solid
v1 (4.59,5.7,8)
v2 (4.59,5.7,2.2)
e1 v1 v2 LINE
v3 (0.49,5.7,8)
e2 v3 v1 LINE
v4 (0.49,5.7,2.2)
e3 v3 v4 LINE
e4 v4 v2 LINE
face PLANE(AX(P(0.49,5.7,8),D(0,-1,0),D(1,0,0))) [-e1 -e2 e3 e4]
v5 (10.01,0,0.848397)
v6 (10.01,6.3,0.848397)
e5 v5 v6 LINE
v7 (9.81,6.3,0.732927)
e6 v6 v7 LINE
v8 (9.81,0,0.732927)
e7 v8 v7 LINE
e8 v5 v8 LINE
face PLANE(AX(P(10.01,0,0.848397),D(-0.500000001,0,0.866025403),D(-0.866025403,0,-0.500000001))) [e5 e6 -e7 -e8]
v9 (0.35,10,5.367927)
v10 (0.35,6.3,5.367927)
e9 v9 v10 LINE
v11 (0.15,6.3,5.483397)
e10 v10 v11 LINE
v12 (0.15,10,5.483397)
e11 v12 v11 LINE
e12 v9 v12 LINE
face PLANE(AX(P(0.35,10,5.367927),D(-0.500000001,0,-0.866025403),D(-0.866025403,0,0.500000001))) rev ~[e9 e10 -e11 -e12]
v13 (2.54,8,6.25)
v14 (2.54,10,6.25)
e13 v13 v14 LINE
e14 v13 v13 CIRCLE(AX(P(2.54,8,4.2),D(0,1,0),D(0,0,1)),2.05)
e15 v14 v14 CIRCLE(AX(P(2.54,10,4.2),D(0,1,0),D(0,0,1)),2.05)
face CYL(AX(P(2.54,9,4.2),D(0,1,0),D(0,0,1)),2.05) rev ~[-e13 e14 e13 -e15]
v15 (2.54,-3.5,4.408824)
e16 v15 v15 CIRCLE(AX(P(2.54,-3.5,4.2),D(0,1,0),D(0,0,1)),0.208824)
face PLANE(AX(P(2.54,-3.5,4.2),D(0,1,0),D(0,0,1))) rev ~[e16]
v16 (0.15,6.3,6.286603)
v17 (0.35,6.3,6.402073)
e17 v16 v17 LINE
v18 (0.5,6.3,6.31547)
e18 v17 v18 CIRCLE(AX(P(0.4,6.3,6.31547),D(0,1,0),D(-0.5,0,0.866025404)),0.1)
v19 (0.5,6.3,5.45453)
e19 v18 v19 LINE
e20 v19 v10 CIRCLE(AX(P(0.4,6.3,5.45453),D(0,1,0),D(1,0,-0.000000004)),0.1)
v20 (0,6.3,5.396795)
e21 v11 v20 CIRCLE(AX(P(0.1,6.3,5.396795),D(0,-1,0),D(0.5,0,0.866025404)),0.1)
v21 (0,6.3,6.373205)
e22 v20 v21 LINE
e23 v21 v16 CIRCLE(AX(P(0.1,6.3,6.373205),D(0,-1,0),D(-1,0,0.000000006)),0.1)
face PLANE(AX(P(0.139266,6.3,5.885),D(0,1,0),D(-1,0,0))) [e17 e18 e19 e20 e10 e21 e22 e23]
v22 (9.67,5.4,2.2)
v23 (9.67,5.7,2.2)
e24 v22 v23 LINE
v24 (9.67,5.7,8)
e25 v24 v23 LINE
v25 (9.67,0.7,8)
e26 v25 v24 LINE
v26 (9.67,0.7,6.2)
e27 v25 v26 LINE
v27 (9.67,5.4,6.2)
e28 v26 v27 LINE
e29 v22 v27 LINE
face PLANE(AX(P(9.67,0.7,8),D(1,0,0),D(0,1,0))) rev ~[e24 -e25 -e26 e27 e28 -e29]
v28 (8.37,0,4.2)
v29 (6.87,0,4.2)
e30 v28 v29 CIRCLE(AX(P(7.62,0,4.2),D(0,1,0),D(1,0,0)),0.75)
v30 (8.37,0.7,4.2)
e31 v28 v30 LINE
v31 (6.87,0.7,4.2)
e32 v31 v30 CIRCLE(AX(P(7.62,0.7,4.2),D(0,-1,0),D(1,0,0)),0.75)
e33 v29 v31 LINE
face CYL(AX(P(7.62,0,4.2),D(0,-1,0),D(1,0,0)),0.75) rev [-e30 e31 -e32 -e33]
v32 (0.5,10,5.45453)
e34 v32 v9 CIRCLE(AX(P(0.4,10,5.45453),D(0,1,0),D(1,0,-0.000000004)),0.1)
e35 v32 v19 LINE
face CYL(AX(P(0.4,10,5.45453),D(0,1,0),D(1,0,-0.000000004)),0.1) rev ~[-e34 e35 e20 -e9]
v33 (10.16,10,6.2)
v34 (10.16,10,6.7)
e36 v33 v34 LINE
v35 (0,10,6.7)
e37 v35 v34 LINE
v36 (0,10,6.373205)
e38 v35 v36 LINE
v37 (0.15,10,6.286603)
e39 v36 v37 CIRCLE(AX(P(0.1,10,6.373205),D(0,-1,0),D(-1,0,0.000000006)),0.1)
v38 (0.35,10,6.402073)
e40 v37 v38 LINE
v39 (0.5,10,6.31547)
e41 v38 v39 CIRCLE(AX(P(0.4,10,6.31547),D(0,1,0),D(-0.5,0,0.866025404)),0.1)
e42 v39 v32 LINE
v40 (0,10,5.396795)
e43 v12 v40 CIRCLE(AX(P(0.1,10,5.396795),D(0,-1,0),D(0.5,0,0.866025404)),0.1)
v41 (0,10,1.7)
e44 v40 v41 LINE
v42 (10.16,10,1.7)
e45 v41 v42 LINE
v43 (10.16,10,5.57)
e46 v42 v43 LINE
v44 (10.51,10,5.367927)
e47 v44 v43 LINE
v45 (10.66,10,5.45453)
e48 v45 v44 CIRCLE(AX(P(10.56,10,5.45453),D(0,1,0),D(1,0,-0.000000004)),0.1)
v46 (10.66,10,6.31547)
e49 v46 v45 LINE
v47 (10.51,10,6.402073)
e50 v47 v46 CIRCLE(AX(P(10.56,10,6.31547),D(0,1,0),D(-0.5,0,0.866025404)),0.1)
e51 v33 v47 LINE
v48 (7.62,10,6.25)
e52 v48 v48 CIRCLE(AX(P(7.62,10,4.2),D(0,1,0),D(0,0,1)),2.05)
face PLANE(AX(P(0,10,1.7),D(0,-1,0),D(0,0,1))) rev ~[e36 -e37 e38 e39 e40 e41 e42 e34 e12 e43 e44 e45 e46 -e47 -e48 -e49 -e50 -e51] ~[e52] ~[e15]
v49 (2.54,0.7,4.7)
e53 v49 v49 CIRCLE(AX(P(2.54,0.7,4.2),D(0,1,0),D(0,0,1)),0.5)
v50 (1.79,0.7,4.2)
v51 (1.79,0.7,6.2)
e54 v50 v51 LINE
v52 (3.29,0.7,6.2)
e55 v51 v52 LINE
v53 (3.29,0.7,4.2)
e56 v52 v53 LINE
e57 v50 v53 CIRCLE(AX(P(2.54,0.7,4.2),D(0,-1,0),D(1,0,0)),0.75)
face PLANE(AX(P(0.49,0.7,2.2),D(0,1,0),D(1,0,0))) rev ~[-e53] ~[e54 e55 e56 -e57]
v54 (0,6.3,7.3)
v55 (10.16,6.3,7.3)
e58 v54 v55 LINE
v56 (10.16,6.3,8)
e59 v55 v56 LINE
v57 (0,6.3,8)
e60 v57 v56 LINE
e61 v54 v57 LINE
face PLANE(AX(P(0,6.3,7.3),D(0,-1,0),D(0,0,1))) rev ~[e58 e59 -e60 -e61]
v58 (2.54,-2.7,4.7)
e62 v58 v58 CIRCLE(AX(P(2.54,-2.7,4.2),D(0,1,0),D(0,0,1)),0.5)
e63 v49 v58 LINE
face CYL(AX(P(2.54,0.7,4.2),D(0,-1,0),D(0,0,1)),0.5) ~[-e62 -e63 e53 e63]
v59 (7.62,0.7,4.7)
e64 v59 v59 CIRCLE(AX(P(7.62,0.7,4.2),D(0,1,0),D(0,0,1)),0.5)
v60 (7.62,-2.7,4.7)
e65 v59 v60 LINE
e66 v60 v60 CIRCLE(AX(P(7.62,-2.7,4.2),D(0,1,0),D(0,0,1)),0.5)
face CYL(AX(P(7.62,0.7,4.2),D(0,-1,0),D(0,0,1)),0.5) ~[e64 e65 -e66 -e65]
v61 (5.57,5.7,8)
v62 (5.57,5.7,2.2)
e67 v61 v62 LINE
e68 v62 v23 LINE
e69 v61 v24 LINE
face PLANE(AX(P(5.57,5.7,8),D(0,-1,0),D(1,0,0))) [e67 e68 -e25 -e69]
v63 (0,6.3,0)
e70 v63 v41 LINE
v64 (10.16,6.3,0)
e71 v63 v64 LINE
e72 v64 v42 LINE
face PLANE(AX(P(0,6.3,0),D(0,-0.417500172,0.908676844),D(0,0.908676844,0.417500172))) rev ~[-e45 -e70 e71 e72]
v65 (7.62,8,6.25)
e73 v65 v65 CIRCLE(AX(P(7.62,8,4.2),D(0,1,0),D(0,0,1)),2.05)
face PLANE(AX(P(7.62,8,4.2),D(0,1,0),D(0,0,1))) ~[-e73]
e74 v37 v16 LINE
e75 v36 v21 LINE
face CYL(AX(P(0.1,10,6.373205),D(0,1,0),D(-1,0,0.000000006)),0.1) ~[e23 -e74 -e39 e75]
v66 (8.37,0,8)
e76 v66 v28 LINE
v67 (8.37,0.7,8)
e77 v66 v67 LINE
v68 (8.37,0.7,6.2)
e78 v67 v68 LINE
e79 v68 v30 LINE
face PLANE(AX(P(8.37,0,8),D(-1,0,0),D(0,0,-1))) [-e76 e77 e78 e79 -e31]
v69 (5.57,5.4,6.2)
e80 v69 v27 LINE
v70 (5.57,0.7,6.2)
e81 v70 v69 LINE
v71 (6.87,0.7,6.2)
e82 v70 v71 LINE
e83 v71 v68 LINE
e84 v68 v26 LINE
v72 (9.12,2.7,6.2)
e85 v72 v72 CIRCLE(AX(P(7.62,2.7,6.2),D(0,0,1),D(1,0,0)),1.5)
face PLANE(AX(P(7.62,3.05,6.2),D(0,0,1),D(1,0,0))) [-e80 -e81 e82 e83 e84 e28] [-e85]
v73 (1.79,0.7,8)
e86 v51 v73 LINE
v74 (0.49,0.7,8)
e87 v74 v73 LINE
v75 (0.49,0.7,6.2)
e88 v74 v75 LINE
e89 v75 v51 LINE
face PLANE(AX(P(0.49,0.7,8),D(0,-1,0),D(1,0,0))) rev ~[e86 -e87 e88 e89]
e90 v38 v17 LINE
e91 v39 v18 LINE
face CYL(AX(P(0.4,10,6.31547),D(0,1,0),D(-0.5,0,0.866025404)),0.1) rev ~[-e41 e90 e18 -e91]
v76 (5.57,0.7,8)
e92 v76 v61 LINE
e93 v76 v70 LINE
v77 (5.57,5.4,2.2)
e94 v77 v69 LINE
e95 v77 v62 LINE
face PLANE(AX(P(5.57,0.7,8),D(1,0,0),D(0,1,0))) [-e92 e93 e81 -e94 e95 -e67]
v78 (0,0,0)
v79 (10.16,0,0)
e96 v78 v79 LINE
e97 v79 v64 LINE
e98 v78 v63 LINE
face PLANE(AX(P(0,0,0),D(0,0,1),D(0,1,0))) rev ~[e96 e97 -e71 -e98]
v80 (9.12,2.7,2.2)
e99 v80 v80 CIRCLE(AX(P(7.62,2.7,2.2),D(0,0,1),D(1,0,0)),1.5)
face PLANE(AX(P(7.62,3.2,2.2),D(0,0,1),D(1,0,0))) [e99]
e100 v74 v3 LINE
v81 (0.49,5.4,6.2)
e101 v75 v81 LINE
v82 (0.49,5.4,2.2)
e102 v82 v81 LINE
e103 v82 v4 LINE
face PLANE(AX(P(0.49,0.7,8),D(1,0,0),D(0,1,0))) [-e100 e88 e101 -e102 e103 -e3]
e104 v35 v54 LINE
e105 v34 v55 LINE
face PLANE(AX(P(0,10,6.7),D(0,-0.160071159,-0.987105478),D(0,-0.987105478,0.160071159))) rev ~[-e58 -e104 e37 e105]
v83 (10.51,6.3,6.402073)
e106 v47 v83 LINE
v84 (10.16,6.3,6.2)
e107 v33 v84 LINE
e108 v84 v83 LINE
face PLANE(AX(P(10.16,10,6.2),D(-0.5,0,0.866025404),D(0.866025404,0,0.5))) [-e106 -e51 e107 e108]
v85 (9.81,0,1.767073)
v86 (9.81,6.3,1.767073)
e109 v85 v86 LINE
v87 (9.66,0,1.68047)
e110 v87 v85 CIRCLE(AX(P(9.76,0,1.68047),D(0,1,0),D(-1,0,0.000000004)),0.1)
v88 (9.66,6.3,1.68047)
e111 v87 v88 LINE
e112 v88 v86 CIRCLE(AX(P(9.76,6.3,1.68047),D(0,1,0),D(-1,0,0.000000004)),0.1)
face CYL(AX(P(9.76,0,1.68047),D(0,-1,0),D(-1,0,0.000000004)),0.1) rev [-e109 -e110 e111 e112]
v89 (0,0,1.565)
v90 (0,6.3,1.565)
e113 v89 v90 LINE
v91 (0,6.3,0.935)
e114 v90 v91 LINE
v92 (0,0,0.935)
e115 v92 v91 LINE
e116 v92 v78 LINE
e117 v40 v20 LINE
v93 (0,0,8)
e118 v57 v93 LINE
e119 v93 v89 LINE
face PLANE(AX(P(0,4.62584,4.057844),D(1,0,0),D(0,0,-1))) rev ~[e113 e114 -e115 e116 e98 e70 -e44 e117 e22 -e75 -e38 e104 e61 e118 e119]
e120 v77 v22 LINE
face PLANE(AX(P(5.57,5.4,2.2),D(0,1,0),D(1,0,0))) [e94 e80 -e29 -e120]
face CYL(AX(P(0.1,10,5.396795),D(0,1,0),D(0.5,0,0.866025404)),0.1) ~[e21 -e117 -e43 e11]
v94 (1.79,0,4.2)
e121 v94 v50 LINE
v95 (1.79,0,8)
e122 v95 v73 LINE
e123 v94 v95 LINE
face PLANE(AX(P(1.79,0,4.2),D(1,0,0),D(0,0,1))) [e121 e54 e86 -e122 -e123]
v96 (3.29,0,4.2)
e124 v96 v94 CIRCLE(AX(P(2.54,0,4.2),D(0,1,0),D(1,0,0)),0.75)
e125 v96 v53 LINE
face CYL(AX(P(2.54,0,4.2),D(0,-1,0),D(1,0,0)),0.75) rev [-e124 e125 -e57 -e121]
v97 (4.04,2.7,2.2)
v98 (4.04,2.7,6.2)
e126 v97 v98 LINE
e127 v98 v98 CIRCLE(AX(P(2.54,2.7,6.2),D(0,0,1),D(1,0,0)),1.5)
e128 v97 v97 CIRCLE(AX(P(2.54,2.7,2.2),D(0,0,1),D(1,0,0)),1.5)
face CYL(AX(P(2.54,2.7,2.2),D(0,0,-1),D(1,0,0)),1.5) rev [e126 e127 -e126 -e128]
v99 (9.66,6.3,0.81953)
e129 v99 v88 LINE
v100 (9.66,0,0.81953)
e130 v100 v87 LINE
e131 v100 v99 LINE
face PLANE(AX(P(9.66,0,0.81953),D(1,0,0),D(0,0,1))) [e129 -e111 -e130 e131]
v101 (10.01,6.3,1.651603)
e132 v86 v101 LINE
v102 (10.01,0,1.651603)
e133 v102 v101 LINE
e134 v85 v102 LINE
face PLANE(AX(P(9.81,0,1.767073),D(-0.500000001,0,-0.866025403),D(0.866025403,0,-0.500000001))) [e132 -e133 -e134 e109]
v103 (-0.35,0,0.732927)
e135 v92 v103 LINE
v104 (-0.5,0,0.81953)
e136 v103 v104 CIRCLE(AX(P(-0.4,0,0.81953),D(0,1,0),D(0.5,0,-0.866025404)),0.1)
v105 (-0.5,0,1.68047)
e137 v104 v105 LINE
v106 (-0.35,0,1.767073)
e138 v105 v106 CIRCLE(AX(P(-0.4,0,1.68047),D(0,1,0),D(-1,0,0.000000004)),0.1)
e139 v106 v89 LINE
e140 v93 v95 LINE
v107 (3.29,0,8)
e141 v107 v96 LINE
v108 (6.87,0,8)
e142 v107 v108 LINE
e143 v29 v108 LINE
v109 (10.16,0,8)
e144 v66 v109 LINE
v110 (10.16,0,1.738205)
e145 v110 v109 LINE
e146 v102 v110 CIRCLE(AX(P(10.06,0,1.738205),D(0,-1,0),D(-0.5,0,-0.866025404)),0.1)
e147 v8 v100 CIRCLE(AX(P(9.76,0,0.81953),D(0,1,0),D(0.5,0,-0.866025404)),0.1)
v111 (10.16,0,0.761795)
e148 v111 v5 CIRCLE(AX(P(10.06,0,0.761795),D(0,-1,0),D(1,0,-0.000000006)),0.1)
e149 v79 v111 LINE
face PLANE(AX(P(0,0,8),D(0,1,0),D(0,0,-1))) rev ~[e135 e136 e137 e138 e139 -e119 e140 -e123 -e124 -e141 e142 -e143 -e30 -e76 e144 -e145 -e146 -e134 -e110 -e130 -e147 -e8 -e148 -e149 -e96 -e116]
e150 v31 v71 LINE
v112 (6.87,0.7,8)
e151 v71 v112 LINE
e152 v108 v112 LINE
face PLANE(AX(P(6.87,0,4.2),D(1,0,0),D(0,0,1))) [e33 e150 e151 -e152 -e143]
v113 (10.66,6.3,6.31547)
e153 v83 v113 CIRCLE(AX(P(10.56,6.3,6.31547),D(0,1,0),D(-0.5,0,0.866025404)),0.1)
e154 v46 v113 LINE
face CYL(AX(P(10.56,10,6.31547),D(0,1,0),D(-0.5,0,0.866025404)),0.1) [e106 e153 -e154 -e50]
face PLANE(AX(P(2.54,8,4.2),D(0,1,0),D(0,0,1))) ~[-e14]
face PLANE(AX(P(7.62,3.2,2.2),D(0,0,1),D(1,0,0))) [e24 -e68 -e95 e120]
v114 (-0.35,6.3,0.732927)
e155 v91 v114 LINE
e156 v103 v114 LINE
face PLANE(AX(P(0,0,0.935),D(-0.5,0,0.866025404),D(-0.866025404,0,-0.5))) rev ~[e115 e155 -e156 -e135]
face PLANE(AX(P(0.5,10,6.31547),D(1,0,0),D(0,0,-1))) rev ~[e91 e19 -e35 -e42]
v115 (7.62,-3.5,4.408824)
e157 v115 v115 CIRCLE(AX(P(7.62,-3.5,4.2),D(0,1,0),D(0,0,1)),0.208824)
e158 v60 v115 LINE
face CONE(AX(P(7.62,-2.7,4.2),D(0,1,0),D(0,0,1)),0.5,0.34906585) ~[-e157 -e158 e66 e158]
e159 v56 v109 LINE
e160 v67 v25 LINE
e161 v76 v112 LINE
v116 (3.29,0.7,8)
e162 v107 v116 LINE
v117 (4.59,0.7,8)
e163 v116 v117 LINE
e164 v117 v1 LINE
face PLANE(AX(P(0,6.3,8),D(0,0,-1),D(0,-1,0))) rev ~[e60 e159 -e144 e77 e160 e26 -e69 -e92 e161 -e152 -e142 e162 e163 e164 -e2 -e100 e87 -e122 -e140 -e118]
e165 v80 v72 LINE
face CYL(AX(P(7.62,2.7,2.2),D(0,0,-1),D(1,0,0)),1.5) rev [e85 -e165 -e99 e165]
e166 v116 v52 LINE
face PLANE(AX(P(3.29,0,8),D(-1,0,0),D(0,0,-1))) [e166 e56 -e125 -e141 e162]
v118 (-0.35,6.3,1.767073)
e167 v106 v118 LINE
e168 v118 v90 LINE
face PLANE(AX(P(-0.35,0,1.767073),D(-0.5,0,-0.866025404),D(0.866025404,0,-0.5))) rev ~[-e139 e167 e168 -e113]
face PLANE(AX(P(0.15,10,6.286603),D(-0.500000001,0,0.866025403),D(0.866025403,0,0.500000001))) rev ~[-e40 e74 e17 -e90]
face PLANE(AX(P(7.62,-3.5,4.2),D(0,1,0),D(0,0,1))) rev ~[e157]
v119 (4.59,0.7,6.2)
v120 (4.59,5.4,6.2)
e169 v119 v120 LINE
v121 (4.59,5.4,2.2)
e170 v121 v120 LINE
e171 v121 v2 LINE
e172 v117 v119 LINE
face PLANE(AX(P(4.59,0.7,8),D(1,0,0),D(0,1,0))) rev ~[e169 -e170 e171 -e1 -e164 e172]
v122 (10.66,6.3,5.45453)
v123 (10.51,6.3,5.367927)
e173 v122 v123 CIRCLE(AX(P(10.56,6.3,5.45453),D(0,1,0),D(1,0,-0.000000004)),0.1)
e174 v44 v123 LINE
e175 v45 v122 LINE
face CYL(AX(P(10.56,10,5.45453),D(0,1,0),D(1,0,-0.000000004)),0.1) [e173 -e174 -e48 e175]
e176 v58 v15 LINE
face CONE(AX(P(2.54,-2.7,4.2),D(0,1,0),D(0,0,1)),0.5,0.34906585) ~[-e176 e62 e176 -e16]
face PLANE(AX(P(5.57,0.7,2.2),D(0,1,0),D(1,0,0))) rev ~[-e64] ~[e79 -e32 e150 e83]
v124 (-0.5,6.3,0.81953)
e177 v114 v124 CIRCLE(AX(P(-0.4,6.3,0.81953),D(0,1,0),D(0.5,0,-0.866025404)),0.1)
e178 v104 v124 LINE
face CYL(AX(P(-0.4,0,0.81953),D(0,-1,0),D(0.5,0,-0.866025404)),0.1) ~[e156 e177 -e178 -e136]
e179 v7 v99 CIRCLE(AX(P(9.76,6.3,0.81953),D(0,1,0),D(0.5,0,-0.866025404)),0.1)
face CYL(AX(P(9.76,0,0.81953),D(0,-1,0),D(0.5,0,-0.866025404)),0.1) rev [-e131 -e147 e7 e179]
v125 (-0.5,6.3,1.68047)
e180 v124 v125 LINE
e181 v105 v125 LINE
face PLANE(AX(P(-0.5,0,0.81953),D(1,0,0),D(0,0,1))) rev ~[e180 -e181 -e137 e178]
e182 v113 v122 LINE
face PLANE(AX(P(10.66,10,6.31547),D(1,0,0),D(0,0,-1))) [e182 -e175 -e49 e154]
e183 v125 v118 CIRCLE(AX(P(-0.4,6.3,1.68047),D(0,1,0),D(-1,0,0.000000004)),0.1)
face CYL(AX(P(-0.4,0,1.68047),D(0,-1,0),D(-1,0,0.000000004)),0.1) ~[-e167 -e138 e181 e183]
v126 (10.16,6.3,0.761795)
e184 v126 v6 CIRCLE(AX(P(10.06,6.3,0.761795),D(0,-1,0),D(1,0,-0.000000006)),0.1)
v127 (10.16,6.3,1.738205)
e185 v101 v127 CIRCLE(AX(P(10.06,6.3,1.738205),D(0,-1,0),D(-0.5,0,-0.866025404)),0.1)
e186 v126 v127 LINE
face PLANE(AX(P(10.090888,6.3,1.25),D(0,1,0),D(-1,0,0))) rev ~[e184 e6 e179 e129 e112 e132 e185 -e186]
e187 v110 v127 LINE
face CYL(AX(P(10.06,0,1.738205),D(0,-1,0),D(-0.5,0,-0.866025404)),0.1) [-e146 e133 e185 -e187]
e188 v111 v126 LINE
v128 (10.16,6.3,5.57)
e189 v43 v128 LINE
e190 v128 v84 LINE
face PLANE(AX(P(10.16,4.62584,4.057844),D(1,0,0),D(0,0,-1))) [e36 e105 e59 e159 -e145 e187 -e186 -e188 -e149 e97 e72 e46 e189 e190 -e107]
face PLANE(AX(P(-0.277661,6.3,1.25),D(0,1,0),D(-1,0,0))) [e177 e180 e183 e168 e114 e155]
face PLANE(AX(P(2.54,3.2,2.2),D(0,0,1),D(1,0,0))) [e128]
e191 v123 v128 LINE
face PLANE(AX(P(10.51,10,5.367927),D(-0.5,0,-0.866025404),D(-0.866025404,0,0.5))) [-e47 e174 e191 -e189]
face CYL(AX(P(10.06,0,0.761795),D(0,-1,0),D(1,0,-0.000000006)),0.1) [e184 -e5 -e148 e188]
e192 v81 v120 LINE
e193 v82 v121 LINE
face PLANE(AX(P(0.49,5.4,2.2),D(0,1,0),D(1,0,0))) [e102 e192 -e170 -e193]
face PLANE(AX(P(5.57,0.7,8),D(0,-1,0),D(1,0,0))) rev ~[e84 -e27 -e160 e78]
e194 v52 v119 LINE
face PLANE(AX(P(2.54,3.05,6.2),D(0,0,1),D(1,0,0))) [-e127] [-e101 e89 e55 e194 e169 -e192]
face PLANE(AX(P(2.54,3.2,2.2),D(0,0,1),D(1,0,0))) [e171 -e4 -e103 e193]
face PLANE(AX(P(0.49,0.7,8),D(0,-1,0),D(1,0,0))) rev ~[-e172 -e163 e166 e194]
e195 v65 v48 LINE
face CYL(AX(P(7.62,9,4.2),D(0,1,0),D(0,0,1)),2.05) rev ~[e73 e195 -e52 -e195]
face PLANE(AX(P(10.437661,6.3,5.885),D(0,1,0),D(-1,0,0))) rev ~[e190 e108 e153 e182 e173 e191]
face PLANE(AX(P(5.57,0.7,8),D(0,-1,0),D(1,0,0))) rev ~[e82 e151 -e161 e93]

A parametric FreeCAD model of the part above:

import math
import FreeCAD as App
import Part
import Sketcher
from FreeCAD import Vector
Q = App.Units.Quantity

doc = App.newDocument("Part")
params = doc.addObject("Spreadsheet::Sheet", "Params")
for row, (alias, value) in enumerate([
    ("sketch1_height", "8 mm"),
    ("sketch1_height2", "5 mm"),
    ("sketch1_width", "6.3 mm"),
    ("sketch1_height3", "0.7 mm"),
    ("pad1_length", "10.16 mm"),
    ("sketch2_height", "5 mm"),
    ("sketch2_width", "4.1 mm"),
    ("pocket1_length", "5.8 mm"),
    ("sketch3_height", "5 mm"),
    ("sketch3_width", "4.1 mm"),
    ("pocket2_length", "5.8 mm"),
    ("sketch4_radius", "0.75 mm"),
    ("sketch4_height", "3.8 mm"),
    ("pocket3_length", "1 mm"),
    ("sketch5_radius", "0.75 mm"),
    ("sketch5_height", "3.8 mm"),
    ("pocket4_length", "1 mm"),
    ("sketch6_diameter", "3 mm"),
    ("sketch6_width", "4.1 mm"),
    ("sketch6_height", "4.7 mm"),
    ("pad2_length", "2 mm"),
    ("pad2_length2", "2 mm"),
    ("sketch7_diameter", "3 mm"),
    ("sketch7_width", "4.1 mm"),
    ("sketch7_height", "4.7 mm"),
    ("pad3_length", "2 mm"),
    ("pad3_length2", "2 mm"),
    ("sketch8_width", "0.5 mm"),
    ("sketch8_height", "4.2 mm"),
    ("sketch8_height2", "3.4 mm"),
    ("revolution_angle", "360 deg"),
    ("sketch9_width", "0.5 mm"),
    ("sketch9_height", "4.2 mm"),
    ("sketch9_height2", "3.4 mm"),
    ("revolution2_angle", "360 deg"),
    ("sketch10_height", "2 mm"),
    ("sketch10_width", "2.05 mm"),
    ("groove_angle", "360 deg"),
    ("sketch11_height", "2 mm"),
    ("sketch11_width", "2.05 mm"),
    ("groove2_angle", "360 deg"),
    ("sketch12_radius", "0.1 mm"),
    ("sketch12_height", "0.63 mm"),
    ("pad4_length", "6.3 mm"),
    ("sketch13_radius", "0.1 mm"),
    ("sketch13_width", "0.3 mm"),
    ("sketch13_height", "1.23 mm"),
    ("pocket5_length", "6.3 mm"),
    ("sketch14_radius", "0.1 mm"),
    ("sketch14_width", "0.2 mm"),
    ("sketch14_height", "1.03 mm"),
    ("pocket6_length", "3.7 mm"),
    ("sketch15_radius", "0.1 mm"),
    ("sketch15_height", "0.63 mm"),
    ("pad5_length", "3.7 mm"),
], start=1):
    params.set(f"A{row}", alias)
    params.set(f"B{row}", "=" + value)
    params.setAlias(f"B{row}", alias)

body = doc.addObject("PartDesign::Body", "Body")

sketch1 = body.newObject("Sketcher::SketchObject", "Sketch")
sketch1.AttachmentSupport = (doc.getObject("YZ_Plane"), [""])
sketch1.MapMode = "FlatFace"
sketch1.addGeometry([
    Part.LineSegment(Vector(0, 8, 0), Vector(0, 0, 0)),
    Part.LineSegment(Vector(0, 0, 0), Vector(6.3, 0, 0)),
    Part.LineSegment(Vector(6.3, 0, 0), Vector(10, 1.7, 0)),
    Part.LineSegment(Vector(10, 1.7, 0), Vector(10, 6.7, 0)),
    Part.LineSegment(Vector(10, 6.7, 0), Vector(6.3, 7.3, 0)),
    Part.LineSegment(Vector(6.3, 7.3, 0), Vector(6.3, 8, 0)),
    Part.LineSegment(Vector(6.3, 8, 0), Vector(0, 8, 0)),
], False)
sketch1.addConstraint([
    Sketcher.Constraint("Coincident", 0, 2, 1, 1),
    Sketcher.Constraint("Coincident", 1, 2, 2, 1),
    Sketcher.Constraint("Coincident", 2, 2, 3, 1),
    Sketcher.Constraint("Coincident", 3, 2, 4, 1),
    Sketcher.Constraint("Coincident", 4, 2, 5, 1),
    Sketcher.Constraint("Coincident", 5, 2, 6, 1),
    Sketcher.Constraint("Coincident", 6, 2, 0, 1),
    Sketcher.Constraint("Vertical", 0),
    Sketcher.Constraint("Horizontal", 1),
    Sketcher.Constraint("Vertical", 3),
    Sketcher.Constraint("Vertical", 5),
    Sketcher.Constraint("Horizontal", 6),
    Sketcher.Constraint("Coincident", 0, 2, -1, 1),
    Sketcher.Constraint("Vertical", 1, 2, 4, 2),
    Sketcher.Constraint("DistanceY", 0, 2, 0, 1, Q("8 mm")),
    Sketcher.Constraint("DistanceY", 3, 1, 3, 2, Q("5 mm")),
    Sketcher.Constraint("DistanceX", 1, 1, 1, 2, Q("6.3 mm")),
    Sketcher.Constraint("DistanceY", 5, 1, 5, 2, Q("0.7 mm")),
    Sketcher.Constraint("DistanceX", -1, 1, 2, 2, Q("10 mm")),
    Sketcher.Constraint("DistanceY", -1, 1, 2, 2, Q("1.7 mm")),
])
sketch1.setExpression("Constraints[14]", "Params.sketch1_height")
sketch1.setExpression("Constraints[15]", "Params.sketch1_height2")
sketch1.setExpression("Constraints[16]", "Params.sketch1_width")
sketch1.setExpression("Constraints[17]", "Params.sketch1_height3")
pad1 = body.newObject("PartDesign::Pad", "Pad")
pad1.Profile = sketch1
pad1.setExpression("Length", "Params.pad1_length")

sketch2 = body.newObject("Sketcher::SketchObject", "Sketch001")
sketch2.AttachmentSupport = (doc.getObject("XY_Plane"), [""])
sketch2.MapMode = "FlatFace"
sketch2.AttachmentOffset = App.Placement(Vector(0, 0, 8), App.Rotation())
sketch2.addGeometry([
    Part.LineSegment(Vector(0.5, 5.7, 0), Vector(0.5, 0.7, 0)),
    Part.LineSegment(Vector(0.5, 0.7, 0), Vector(4.6, 0.7, 0)),
    Part.LineSegment(Vector(4.6, 0.7, 0), Vector(4.6, 5.7, 0)),
    Part.LineSegment(Vector(4.6, 5.7, 0), Vector(0.5, 5.7, 0)),
], False)
sketch2.addConstraint([
    Sketcher.Constraint("Coincident", 0, 2, 1, 1),
    Sketcher.Constraint("Coincident", 1, 2, 2, 1),
    Sketcher.Constraint("Coincident", 2, 2, 3, 1),
    Sketcher.Constraint("Coincident", 3, 2, 0, 1),
    Sketcher.Constraint("Vertical", 0),
    Sketcher.Constraint("Horizontal", 1),
    Sketcher.Constraint("Vertical", 2),
    Sketcher.Constraint("Horizontal", 3),
    Sketcher.Constraint("DistanceY", 0, 2, 0, 1, Q("5 mm")),
    Sketcher.Constraint("DistanceX", 1, 1, 1, 2, Q("4.1 mm")),
    Sketcher.Constraint("DistanceY", -1, 1, 0, 2, Q("0.7 mm")),
    Sketcher.Constraint("DistanceX", -1, 1, 0, 2, Q("0.49 mm")),
])
sketch2.setExpression("Constraints[8]", "Params.sketch2_height")
sketch2.setExpression("Constraints[9]", "Params.sketch2_width")
pocket1 = body.newObject("PartDesign::Pocket", "Pocket")
pocket1.Profile = sketch2
pocket1.setExpression("Length", "Params.pocket1_length")

sketch3 = body.newObject("Sketcher::SketchObject", "Sketch002")
sketch3.AttachmentSupport = (doc.getObject("XY_Plane"), [""])
sketch3.MapMode = "FlatFace"
sketch3.AttachmentOffset = App.Placement(Vector(0, 0, 8), App.Rotation())
sketch3.addGeometry([
    Part.LineSegment(Vector(5.6, 5.7, 0), Vector(5.6, 0.7, 0)),
    Part.LineSegment(Vector(5.6, 0.7, 0), Vector(9.7, 0.7, 0)),
    Part.LineSegment(Vector(9.7, 0.7, 0), Vector(9.7, 5.7, 0)),
    Part.LineSegment(Vector(9.7, 5.7, 0), Vector(5.6, 5.7, 0)),
], False)
sketch3.addConstraint([
    Sketcher.Constraint("Coincident", 0, 2, 1, 1),
    Sketcher.Constraint("Coincident", 1, 2, 2, 1),
    Sketcher.Constraint("Coincident", 2, 2, 3, 1),
    Sketcher.Constraint("Coincident", 3, 2, 0, 1),
    Sketcher.Constraint("Vertical", 0),
    Sketcher.Constraint("Horizontal", 1),
    Sketcher.Constraint("Vertical", 2),
    Sketcher.Constraint("Horizontal", 3),
    Sketcher.Constraint("DistanceY", 0, 2, 0, 1, Q("5 mm")),
    Sketcher.Constraint("DistanceX", 1, 1, 1, 2, Q("4.1 mm")),
    Sketcher.Constraint("DistanceY", -1, 1, 0, 2, Q("0.7 mm")),
    Sketcher.Constraint("DistanceX", -1, 1, 0, 2, Q("5.57 mm")),
])
sketch3.setExpression("Constraints[8]", "Params.sketch3_height")
sketch3.setExpression("Constraints[9]", "Params.sketch3_width")
pocket2 = body.newObject("PartDesign::Pocket", "Pocket001")
pocket2.Profile = sketch3
pocket2.setExpression("Length", "Params.pocket2_length")

sketch4 = body.newObject("Sketcher::SketchObject", "Sketch003")
sketch4.AttachmentSupport = (doc.getObject("XZ_Plane"), [""])
sketch4.MapMode = "FlatFace"
sketch4.addGeometry([
    Part.LineSegment(Vector(1.8, 4.2, 0), Vector(1.8, 8, 0)),
    Part.LineSegment(Vector(1.8, 8, 0), Vector(3.3, 8, 0)),
    Part.LineSegment(Vector(3.3, 8, 0), Vector(3.3, 4.2, 0)),
    Part.ArcOfCircle(Part.Circle(Vector(2.5, 4.2, 0), Vector(0, 0, 1), 0.8), math.radians(180), math.radians(360)),
], False)
sketch4.addConstraint([
    Sketcher.Constraint("Coincident", 0, 2, 1, 1),
    Sketcher.Constraint("Coincident", 1, 2, 2, 1),
    Sketcher.Constraint("Tangent", 2, 2, 3, 2),
    Sketcher.Constraint("Tangent", 3, 1, 0, 1),
    Sketcher.Constraint("Vertical", 0),
    Sketcher.Constraint("Horizontal", 1),
    Sketcher.Constraint("Vertical", 2),
    Sketcher.Constraint("Radius", 3, Q("0.75 mm")),
    Sketcher.Constraint("DistanceY", 0, 1, 0, 2, Q("3.8 mm")),
    Sketcher.Constraint("DistanceY", -1, 1, 0, 2, Q("8 mm")),
    Sketcher.Constraint("DistanceX", -1, 1, 3, 3, Q("2.54 mm")),
])
sketch4.setExpression("Constraints[7]", "Params.sketch4_radius")
sketch4.setExpression("Constraints[8]", "Params.sketch4_height")
pocket3 = body.newObject("PartDesign::Pocket", "Pocket002")
pocket3.Profile = sketch4
pocket3.setExpression("Length", "Params.pocket3_length")

sketch5 = body.newObject("Sketcher::SketchObject", "Sketch004")
sketch5.AttachmentSupport = (doc.getObject("XZ_Plane"), [""])
sketch5.MapMode = "FlatFace"
sketch5.addGeometry([
    Part.LineSegment(Vector(6.9, 4.2, 0), Vector(6.9, 8, 0)),
    Part.LineSegment(Vector(6.9, 8, 0), Vector(8.4, 8, 0)),
    Part.LineSegment(Vector(8.4, 8, 0), Vector(8.4, 4.2, 0)),
    Part.ArcOfCircle(Part.Circle(Vector(7.6, 4.2, 0), Vector(0, 0, 1), 0.8), math.radians(180), math.radians(360)),
], False)
sketch5.addConstraint([
    Sketcher.Constraint("Coincident", 0, 2, 1, 1),
    Sketcher.Constraint("Coincident", 1, 2, 2, 1),
    Sketcher.Constraint("Tangent", 2, 2, 3, 2),
    Sketcher.Constraint("Tangent", 3, 1, 0, 1),
    Sketcher.Constraint("Vertical", 0),
    Sketcher.Constraint("Horizontal", 1),
    Sketcher.Constraint("Vertical", 2),
    Sketcher.Constraint("Radius", 3, Q("0.75 mm")),
    Sketcher.Constraint("DistanceY", 0, 1, 0, 2, Q("3.8 mm")),
    Sketcher.Constraint("DistanceY", -1, 1, 0, 2, Q("8 mm")),
    Sketcher.Constraint("DistanceX", -1, 1, 3, 3, Q("7.62 mm")),
])
sketch5.setExpression("Constraints[7]", "Params.sketch5_radius")
sketch5.setExpression("Constraints[8]", "Params.sketch5_height")
pocket4 = body.newObject("PartDesign::Pocket", "Pocket003")
pocket4.Profile = sketch5
pocket4.setExpression("Length", "Params.pocket4_length")

sketch6 = body.newObject("Sketcher::SketchObject", "Sketch005")
sketch6.AttachmentSupport = (doc.getObject("XY_Plane"), [""])
sketch6.MapMode = "FlatFace"
sketch6.AttachmentOffset = App.Placement(Vector(0, 0, 4.2), App.Rotation())
sketch6.addGeometry([
    Part.LineSegment(Vector(0.5, 5.4, 0), Vector(0.5, 0.7, 0)),
    Part.LineSegment(Vector(0.5, 0.7, 0), Vector(4.6, 0.7, 0)),
    Part.LineSegment(Vector(4.6, 0.7, 0), Vector(4.6, 5.4, 0)),
    Part.LineSegment(Vector(4.6, 5.4, 0), Vector(0.5, 5.4, 0)),
    Part.Circle(Vector(2.5, 2.7, 0), Vector(0, 0, 1), 1.5),
], False)
sketch6.addConstraint([
    Sketcher.Constraint("Coincident", 0, 2, 1, 1),
    Sketcher.Constraint("Coincident", 1, 2, 2, 1),
    Sketcher.Constraint("Coincident", 2, 2, 3, 1),
    Sketcher.Constraint("Coincident", 3, 2, 0, 1),
    Sketcher.Constraint("Vertical", 0),
    Sketcher.Constraint("Horizontal", 1),
    Sketcher.Constraint("Vertical", 2),
    Sketcher.Constraint("Horizontal", 3),
    Sketcher.Constraint("Diameter", 4, Q("3 mm")),
    Sketcher.Constraint("DistanceX", 1, 1, 1, 2, Q("4.1 mm")),
    Sketcher.Constraint("DistanceY", 0, 2, 0, 1, Q("4.7 mm")),
    Sketcher.Constraint("DistanceY", 0, 2, 4, 3, Q("2 mm")),
    Sketcher.Constraint("DistanceY", -1, 1, 4, 3, Q("2.7 mm")),
    Sketcher.Constraint("DistanceX", -1, 1, 4, 3, Q("2.54 mm")),
    Sketcher.Constraint("DistanceX", -1, 1, 0, 2, Q("0.49 mm")),
])
sketch6.setExpression("Constraints[8]", "Params.sketch6_diameter")
sketch6.setExpression("Constraints[9]", "Params.sketch6_width")
sketch6.setExpression("Constraints[10]", "Params.sketch6_height")
pad2 = body.newObject("PartDesign::Pad", "Pad001")
pad2.Profile = sketch6
pad2.Type = "TwoLengths"
pad2.setExpression("Length", "Params.pad2_length")
pad2.setExpression("Length2", "Params.pad2_length2")

sketch7 = body.newObject("Sketcher::SketchObject", "Sketch006")
sketch7.AttachmentSupport = (doc.getObject("XY_Plane"), [""])
sketch7.MapMode = "FlatFace"
sketch7.AttachmentOffset = App.Placement(Vector(0, 0, 4.2), App.Rotation())
sketch7.addGeometry([
    Part.LineSegment(Vector(5.6, 5.4, 0), Vector(5.6, 0.7, 0)),
    Part.LineSegment(Vector(5.6, 0.7, 0), Vector(9.7, 0.7, 0)),
    Part.LineSegment(Vector(9.7, 0.7, 0), Vector(9.7, 5.4, 0)),
    Part.LineSegment(Vector(9.7, 5.4, 0), Vector(5.6, 5.4, 0)),
    Part.Circle(Vector(7.6, 2.7, 0), Vector(0, 0, 1), 1.5),
], False)
sketch7.addConstraint([
    Sketcher.Constraint("Coincident", 0, 2, 1, 1),
    Sketcher.Constraint("Coincident", 1, 2, 2, 1),
    Sketcher.Constraint("Coincident", 2, 2, 3, 1),
    Sketcher.Constraint("Coincident", 3, 2, 0, 1),
    Sketcher.Constraint("Vertical", 0),
    Sketcher.Constraint("Horizontal", 1),
    Sketcher.Constraint("Vertical", 2),
    Sketcher.Constraint("Horizontal", 3),
    Sketcher.Constraint("Diameter", 4, Q("3 mm")),
    Sketcher.Constraint("DistanceX", 1, 1, 1, 2, Q("4.1 mm")),
    Sketcher.Constraint("DistanceY", 0, 2, 0, 1, Q("4.7 mm")),
    Sketcher.Constraint("DistanceY", 0, 2, 4, 3, Q("2 mm")),
    Sketcher.Constraint("DistanceY", -1, 1, 4, 3, Q("2.7 mm")),
    Sketcher.Constraint("DistanceX", -1, 1, 4, 3, Q("7.62 mm")),
    Sketcher.Constraint("DistanceX", -1, 1, 0, 2, Q("5.57 mm")),
])
sketch7.setExpression("Constraints[8]", "Params.sketch7_diameter")
sketch7.setExpression("Constraints[9]", "Params.sketch7_width")
sketch7.setExpression("Constraints[10]", "Params.sketch7_height")
pad3 = body.newObject("PartDesign::Pad", "Pad002")
pad3.Profile = sketch7
pad3.Type = "TwoLengths"
pad3.setExpression("Length", "Params.pad3_length")
pad3.setExpression("Length2", "Params.pad3_length2")

sketch8 = body.newObject("Sketcher::SketchObject", "Sketch007")
sketch8.AttachmentSupport = (doc.getObject("XY_Plane"), [""])
sketch8.MapMode = "FlatFace"
sketch8.AttachmentOffset = App.Placement(Vector(0, 0, 4.2), App.Rotation())
sketch8.addGeometry([
    Part.LineSegment(Vector(3.04, 0.7, 0), Vector(2.54, 0.7, 0)),
    Part.LineSegment(Vector(2.54, 0.7, 0), Vector(2.54, -3.5, 0)),
    Part.LineSegment(Vector(2.54, -3.5, 0), Vector(2.75, -3.5, 0)),
    Part.LineSegment(Vector(2.75, -3.5, 0), Vector(3.04, -2.7, 0)),
    Part.LineSegment(Vector(3.04, -2.7, 0), Vector(3.04, 0.7, 0)),
], False)
sketch8.addGeometry(Part.LineSegment(Vector(2.54, -3.5, 0), Vector(2.54, 0.7, 0)), True)
sketch8.addConstraint([
    Sketcher.Constraint("Coincident", 0, 2, 1, 1),
    Sketcher.Constraint("Coincident", 1, 2, 2, 1),
    Sketcher.Constraint("Coincident", 2, 2, 3, 1),
    Sketcher.Constraint("Coincident", 3, 2, 4, 1),
    Sketcher.Constraint("Coincident", 4, 2, 0, 1),
    Sketcher.Constraint("Horizontal", 0),
    Sketcher.Constraint("Vertical", 1),
    Sketcher.Constraint("Horizontal", 2),
    Sketcher.Constraint("Vertical", 4),
    Sketcher.Constraint("Vertical", 5),
    Sketcher.Constraint("Coincident", 5, 1, 1, 2),
    Sketcher.Constraint("Horizontal", 4, 2, 5, 2),
    Sketcher.Constraint("Angle", 3, Q("70 deg")),
    Sketcher.Constraint("DistanceX", 0, 2, 0, 1, Q("0.5 mm")),
    Sketcher.Constraint("DistanceY", 1, 2, 1, 1, Q("4.2 mm")),
    Sketcher.Constraint("DistanceY", 4, 1, 4, 2, Q("3.4 mm")),
    Sketcher.Constraint("DistanceY", -1, 1, 0, 2, Q("0.7 mm")),
    Sketcher.Constraint("DistanceX", -1, 1, 0, 2, Q("2.54 mm")),
])
sketch8.setExpression("Constraints[13]", "Params.sketch8_width")
sketch8.setExpression("Constraints[14]", "Params.sketch8_height")
sketch8.setExpression("Constraints[15]", "Params.sketch8_height2")
revolution = body.newObject("PartDesign::Revolution", "Revolution")
revolution.Profile = sketch8
revolution.ReferenceAxis = (sketch8, ["Axis0"])
revolution.setExpression("Angle", "Params.revolution_angle")

sketch9 = body.newObject("Sketcher::SketchObject", "Sketch008")
sketch9.AttachmentSupport = (doc.getObject("XY_Plane"), [""])
sketch9.MapMode = "FlatFace"
sketch9.AttachmentOffset = App.Placement(Vector(0, 0, 4.2), App.Rotation())
sketch9.addGeometry([
    Part.LineSegment(Vector(8.12, 0.7, 0), Vector(7.62, 0.7, 0)),
    Part.LineSegment(Vector(7.62, 0.7, 0), Vector(7.62, -3.5, 0)),
    Part.LineSegment(Vector(7.62, -3.5, 0), Vector(7.83, -3.5, 0)),
    Part.LineSegment(Vector(7.83, -3.5, 0), Vector(8.12, -2.7, 0)),
    Part.LineSegment(Vector(8.12, -2.7, 0), Vector(8.12, 0.7, 0)),
], False)
sketch9.addGeometry(Part.LineSegment(Vector(7.62, -3.5, 0), Vector(7.62, 0.7, 0)), True)
sketch9.addConstraint([
    Sketcher.Constraint("Coincident", 0, 2, 1, 1),
    Sketcher.Constraint("Coincident", 1, 2, 2, 1),
    Sketcher.Constraint("Coincident", 2, 2, 3, 1),
    Sketcher.Constraint("Coincident", 3, 2, 4, 1),
    Sketcher.Constraint("Coincident", 4, 2, 0, 1),
    Sketcher.Constraint("Horizontal", 0),
    Sketcher.Constraint("Vertical", 1),
    Sketcher.Constraint("Horizontal", 2),
    Sketcher.Constraint("Vertical", 4),
    Sketcher.Constraint("Vertical", 5),
    Sketcher.Constraint("Coincident", 5, 1, 1, 2),
    Sketcher.Constraint("Horizontal", 4, 2, 5, 2),
    Sketcher.Constraint("Angle", 3, Q("70 deg")),
    Sketcher.Constraint("DistanceX", 0, 2, 0, 1, Q("0.5 mm")),
    Sketcher.Constraint("DistanceY", 1, 2, 1, 1, Q("4.2 mm")),
    Sketcher.Constraint("DistanceY", 4, 1, 4, 2, Q("3.4 mm")),
    Sketcher.Constraint("DistanceY", -1, 1, 0, 2, Q("0.7 mm")),
    Sketcher.Constraint("DistanceX", -1, 1, 0, 2, Q("7.62 mm")),
])
sketch9.setExpression("Constraints[13]", "Params.sketch9_width")
sketch9.setExpression("Constraints[14]", "Params.sketch9_height")
sketch9.setExpression("Constraints[15]", "Params.sketch9_height2")
revolution2 = body.newObject("PartDesign::Revolution", "Revolution001")
revolution2.Profile = sketch9
revolution2.ReferenceAxis = (sketch9, ["Axis0"])
revolution2.setExpression("Angle", "Params.revolution2_angle")

sketch10 = body.newObject("Sketcher::SketchObject", "Sketch009")
sketch10.AttachmentSupport = (doc.getObject("XY_Plane"), [""])
sketch10.MapMode = "FlatFace"
sketch10.AttachmentOffset = App.Placement(Vector(0, 0, 4.2), App.Rotation())
sketch10.addGeometry([
    Part.LineSegment(Vector(2.5, 10, 0), Vector(2.5, 8, 0)),
    Part.LineSegment(Vector(2.5, 8, 0), Vector(4.6, 8, 0)),
    Part.LineSegment(Vector(4.6, 8, 0), Vector(4.6, 10, 0)),
    Part.LineSegment(Vector(4.6, 10, 0), Vector(2.5, 10, 0)),
], False)
sketch10.addGeometry(Part.LineSegment(Vector(2.5, 8, 0), Vector(2.5, 10, 0)), True)
sketch10.addConstraint([
    Sketcher.Constraint("Coincident", 0, 2, 1, 1),
    Sketcher.Constraint("Coincident", 1, 2, 2, 1),
    Sketcher.Constraint("Coincident", 2, 2, 3, 1),
    Sketcher.Constraint("Coincident", 3, 2, 0, 1),
    Sketcher.Constraint("Vertical", 0),
    Sketcher.Constraint("Horizontal", 1),
    Sketcher.Constraint("Vertical", 2),
    Sketcher.Constraint("Horizontal", 3),
    Sketcher.Constraint("Vertical", 4),
    Sketcher.Constraint("Coincident", 4, 1, 0, 2),
    Sketcher.Constraint("Horizontal", 2, 2, 4, 2),
    Sketcher.Constraint("DistanceY", 0, 2, 0, 1, Q("2 mm")),
    Sketcher.Constraint("DistanceY", -1, 1, 0, 2, Q("8 mm")),
    Sketcher.Constraint("DistanceX", 1, 1, 1, 2, Q("2.05 mm")),
    Sketcher.Constraint("DistanceX", -1, 1, 0, 2, Q("2.54 mm")),
])
sketch10.setExpression("Constraints[11]", "Params.sketch10_height")
sketch10.setExpression("Constraints[13]", "Params.sketch10_width")
groove = body.newObject("PartDesign::Groove", "Groove")
groove.Profile = sketch10
groove.ReferenceAxis = (sketch10, ["Axis0"])
groove.setExpression("Angle", "Params.groove_angle")

sketch11 = body.newObject("Sketcher::SketchObject", "Sketch010")
sketch11.AttachmentSupport = (doc.getObject("XY_Plane"), [""])
sketch11.MapMode = "FlatFace"
sketch11.AttachmentOffset = App.Placement(Vector(0, 0, 4.2), App.Rotation())
sketch11.addGeometry([
    Part.LineSegment(Vector(7.6, 10, 0), Vector(7.6, 8, 0)),
    Part.LineSegment(Vector(7.6, 8, 0), Vector(9.7, 8, 0)),
    Part.LineSegment(Vector(9.7, 8, 0), Vector(9.7, 10, 0)),
    Part.LineSegment(Vector(9.7, 10, 0), Vector(7.6, 10, 0)),
], False)
sketch11.addGeometry(Part.LineSegment(Vector(7.6, 8, 0), Vector(7.6, 10, 0)), True)
sketch11.addConstraint([
    Sketcher.Constraint("Coincident", 0, 2, 1, 1),
    Sketcher.Constraint("Coincident", 1, 2, 2, 1),
    Sketcher.Constraint("Coincident", 2, 2, 3, 1),
    Sketcher.Constraint("Coincident", 3, 2, 0, 1),
    Sketcher.Constraint("Vertical", 0),
    Sketcher.Constraint("Horizontal", 1),
    Sketcher.Constraint("Vertical", 2),
    Sketcher.Constraint("Horizontal", 3),
    Sketcher.Constraint("Vertical", 4),
    Sketcher.Constraint("Coincident", 4, 1, 0, 2),
    Sketcher.Constraint("Horizontal", 2, 2, 4, 2),
    Sketcher.Constraint("DistanceY", 0, 2, 0, 1, Q("2 mm")),
    Sketcher.Constraint("DistanceY", -1, 1, 0, 2, Q("8 mm")),
    Sketcher.Constraint("DistanceX", 1, 1, 1, 2, Q("2.05 mm")),
    Sketcher.Constraint("DistanceX", -1, 1, 0, 2, Q("7.62 mm")),
])
sketch11.setExpression("Constraints[11]", "Params.sketch11_height")
sketch11.setExpression("Constraints[13]", "Params.sketch11_width")
groove2 = body.newObject("PartDesign::Groove", "Groove001")
groove2.Profile = sketch11
groove2.ReferenceAxis = (sketch11, ["Axis0"])
groove2.setExpression("Angle", "Params.groove2_angle")

sketch12 = body.newObject("Sketcher::SketchObject", "Sketch011")
sketch12.AttachmentSupport = (doc.getObject("XZ_Plane"), [""])
sketch12.MapMode = "FlatFace"
sketch12.addGeometry([
    Part.LineSegment(Vector(-0.35, 1.77, 0), Vector(0, 1.56, 0)),
    Part.LineSegment(Vector(0, 1.56, 0), Vector(0, 0.94, 0)),
    Part.LineSegment(Vector(0, 0.94, 0), Vector(-0.35, 0.73, 0)),
    Part.ArcOfCircle(Part.Circle(Vector(-0.4, 0.82, 0), Vector(0, 0, 1), 0.1), math.radians(180), math.radians(300)),
    Part.LineSegment(Vector(-0.5, 0.82, 0), Vector(-0.5, 1.68, 0)),
    Part.ArcOfCircle(Part.Circle(Vector(-0.4, 1.68, 0), Vector(0, 0, 1), 0.1), math.radians(60), math.radians(180)),
], False)
sketch12.addConstraint([
    Sketcher.Constraint("Coincident", 0, 2, 1, 1),
    Sketcher.Constraint("Coincident", 1, 2, 2, 1),
    Sketcher.Constraint("Tangent", 2, 2, 3, 2),
    Sketcher.Constraint("Tangent", 3, 1, 4, 1),
    Sketcher.Constraint("Tangent", 4, 2, 5, 2),
    Sketcher.Constraint("Tangent", 5, 1, 0, 1),
    Sketcher.Constraint("Vertical", 1),
    Sketcher.Constraint("Vertical", 4),
    Sketcher.Constraint("Equal", 3, 5),
    Sketcher.Constraint("PointOnObject", 0, 2, -2),
    Sketcher.Constraint("Vertical", 2, 2, 5, 1),
    Sketcher.Constraint("Radius", 3, Q("0.1 mm")),
    Sketcher.Constraint("Angle", 0, Q("-30 deg")),
    Sketcher.Constraint("DistanceY", 1, 2, 1, 1, Q("0.63 mm")),
    Sketcher.Constraint("DistanceX", 3, 3, -1, 1, Q("0.4 mm")),
    Sketcher.Constraint("DistanceY", -1, 1, 0, 2, Q("1.565 mm")),
])
sketch12.setExpression("Constraints[11]", "Params.sketch12_radius")
sketch12.setExpression("Constraints[13]", "Params.sketch12_height")
pad4 = body.newObject("PartDesign::Pad", "Pad003")
pad4.Profile = sketch12
pad4.setExpression("Length", "Params.pad4_length")
pad4.Reversed = True

sketch13 = body.newObject("Sketcher::SketchObject", "Sketch012")
sketch13.AttachmentSupport = (doc.getObject("XZ_Plane"), [""])
sketch13.MapMode = "FlatFace"
sketch13.addGeometry([
    Part.LineSegment(Vector(9.81, 1.77, 0), Vector(10.01, 1.65, 0)),
    Part.ArcOfCircle(Part.Circle(Vector(10.06, 1.74, 0), Vector(0, 0, 1), 0.1), math.radians(-120), math.radians(0)),
    Part.LineSegment(Vector(10.16, 1.74, 0), Vector(10.16, 1.86, 0)),
    Part.LineSegment(Vector(10.16, 1.86, 0), Vector(10.46, 1.86, 0)),
    Part.LineSegment(Vector(10.46, 1.86, 0), Vector(10.46, 0.64, 0)),
    Part.LineSegment(Vector(10.46, 0.64, 0), Vector(10.16, 0.64, 0)),
    Part.LineSegment(Vector(10.16, 0.64, 0), Vector(10.16, 0.76, 0)),
    Part.ArcOfCircle(Part.Circle(Vector(10.06, 0.76, 0), Vector(0, 0, 1), 0.1), math.radians(0), math.radians(120)),
    Part.LineSegment(Vector(10.01, 0.85, 0), Vector(9.81, 0.73, 0)),
    Part.ArcOfCircle(Part.Circle(Vector(9.76, 0.82, 0), Vector(0, 0, 1), 0.1), math.radians(180), math.radians(300)),
    Part.LineSegment(Vector(9.66, 0.82, 0), Vector(9.66, 1.68, 0)),
    Part.ArcOfCircle(Part.Circle(Vector(9.76, 1.68, 0), Vector(0, 0, 1), 0.1), math.radians(60), math.radians(180)),
], False)
sketch13.addConstraint([
    Sketcher.Constraint("Tangent", 0, 2, 1, 1),
    Sketcher.Constraint("Tangent", 1, 2, 2, 1),
    Sketcher.Constraint("Coincident", 2, 2, 3, 1),
    Sketcher.Constraint("Coincident", 3, 2, 4, 1),
    Sketcher.Constraint("Coincident", 4, 2, 5, 1),
    Sketcher.Constraint("Coincident", 5, 2, 6, 1),
    Sketcher.Constraint("Tangent", 6, 2, 7, 1),
    Sketcher.Constraint("Tangent", 7, 2, 8, 1),
    Sketcher.Constraint("Tangent", 8, 2, 9, 2),
    Sketcher.Constraint("Tangent", 9, 1, 10, 1),
    Sketcher.Constraint("Tangent", 10, 2, 11, 2),
    Sketcher.Constraint("Tangent", 11, 1, 0, 1),
    Sketcher.Constraint("Vertical", 2),
    Sketcher.Constraint("Horizontal", 3),
    Sketcher.Constraint("Vertical", 4),
    Sketcher.Constraint("Horizontal", 5),
    Sketcher.Constraint("Vertical", 6),
    Sketcher.Constraint("Vertical", 10),
    Sketcher.Constraint("Equal", 1, 7),
    Sketcher.Constraint("Equal", 7, 9),
    Sketcher.Constraint("Equal", 9, 11),
    Sketcher.Constraint("Vertical", 1, 3, 7, 3),
    Sketcher.Constraint("Vertical", 0, 2, 7, 2),
    Sketcher.Constraint("Equal", 2, 6),
    Sketcher.Constraint("Radius", 1, Q("0.1 mm")),
    Sketcher.Constraint("Angle", 0, Q("-30 deg")),
    Sketcher.Constraint("DistanceX", 3, 1, 3, 2, Q("0.3 mm")),
    Sketcher.Constraint("DistanceY", 4, 2, 4, 1, Q("1.23 mm")),
    Sketcher.Constraint("DistanceX", 9, 3, 7, 3, Q("0.3 mm")),
    Sketcher.Constraint("DistanceX", -1, 1, 1, 3, Q("10.06 mm")),
    Sketcher.Constraint("DistanceY", -1, 1, 2, 2, Q("1.865 mm")),
    Sketcher.Constraint("DistanceY", 10, 1, 10, 2, Q("0.86094 mm")),
])
sketch13.setExpression("Constraints[24]", "Params.sketch13_radius")
sketch13.setExpression("Constraints[26]", "Params.sketch13_width")
sketch13.setExpression("Constraints[27]", "Params.sketch13_height")
pocket5 = body.newObject("PartDesign::Pocket", "Pocket004")
pocket5.Profile = sketch13
pocket5.setExpression("Length", "Params.pocket5_length")

sketch14 = body.newObject("Sketcher::SketchObject", "Sketch013")
sketch14.AttachmentSupport = (doc.getObject("XZ_Plane"), [""])
sketch14.MapMode = "FlatFace"
sketch14.AttachmentOffset = App.Placement(Vector(0, 0, -10), App.Rotation())
sketch14.addGeometry([
    Part.LineSegment(Vector(-0.2, 6.4, 0), Vector(0, 6.4, 0)),
    Part.LineSegment(Vector(0, 6.4, 0), Vector(0, 6.373, 0)),
    Part.ArcOfCircle(Part.Circle(Vector(0.1, 6.373, 0), Vector(0, 0, 1), 0.1), math.radians(180), math.radians(300)),
    Part.LineSegment(Vector(0.15, 6.287, 0), Vector(0.35, 6.402, 0)),
    Part.ArcOfCircle(Part.Circle(Vector(0.4, 6.315, 0), Vector(0, 0, 1), 0.1), math.radians(0), math.radians(120)),
    Part.LineSegment(Vector(0.5, 6.315, 0), Vector(0.5, 5.455, 0)),
    Part.ArcOfCircle(Part.Circle(Vector(0.4, 5.455, 0), Vector(0, 0, 1), 0.1), math.radians(-120), math.radians(0)),
    Part.LineSegment(Vector(0.35, 5.368, 0), Vector(0.15, 5.483, 0)),
    Part.ArcOfCircle(Part.Circle(Vector(0.1, 5.397, 0), Vector(0, 0, 1), 0.1), math.radians(60), math.radians(180)),
    Part.LineSegment(Vector(0, 5.397, 0), Vector(0, 5.37, 0)),
    Part.LineSegment(Vector(0, 5.37, 0), Vector(-0.2, 5.37, 0)),
    Part.LineSegment(Vector(-0.2, 5.37, 0), Vector(-0.2, 6.4, 0)),
], False)
sketch14.addConstraint([
    Sketcher.Constraint("Coincident", 0, 2, 1, 1),
    Sketcher.Constraint("Tangent", 1, 2, 2, 1),
    Sketcher.Constraint("Tangent", 2, 2, 3, 1),
    Sketcher.Constraint("Tangent", 3, 2, 4, 2),
    Sketcher.Constraint("Tangent", 4, 1, 5, 1),
    Sketcher.Constraint("Tangent", 5, 2, 6, 2),
    Sketcher.Constraint("Tangent", 6, 1, 7, 1),
    Sketcher.Constraint("Tangent", 7, 2, 8, 1),
    Sketcher.Constraint("Tangent", 8, 2, 9, 1),
    Sketcher.Constraint("Coincident", 9, 2, 10, 1),
    Sketcher.Constraint("Coincident", 10, 2, 11, 1),
    Sketcher.Constraint("Coincident", 11, 2, 0, 1),
    Sketcher.Constraint("Horizontal", 0),
    Sketcher.Constraint("Vertical", 1),
    Sketcher.Constraint("Vertical", 5),
    Sketcher.Constraint("Vertical", 9),
    Sketcher.Constraint("Horizontal", 10),
    Sketcher.Constraint("Vertical", 11),
    Sketcher.Constraint("Equal", 2, 4),
    Sketcher.Constraint("Equal", 4, 6),
    Sketcher.Constraint("Equal", 6, 8),
    Sketcher.Constraint("PointOnObject", 0, 2, -2),
    Sketcher.Constraint("PointOnObject", 8, 2, -2),
    Sketcher.Constraint("Vertical", 3, 2, 6, 1),
    Sketcher.Constraint("Equal", 1, 9),
    Sketcher.Constraint("Radius", 2, Q("0.1 mm")),
    Sketcher.Constraint("Angle", 3, Q("30 deg")),
    Sketcher.Constraint("DistanceX", 0, 1, 0, 2, Q("0.2 mm")),
    Sketcher.Constraint("DistanceY", 11, 1, 11, 2, Q("1.03 mm")),
    Sketcher.Constraint("DistanceX", -1, 1, 4, 3, Q("0.4 mm")),
    Sketcher.Constraint("DistanceY", -1, 1, 0, 2, Q("6.4 mm")),
    Sketcher.Constraint("DistanceY", 5, 2, 5, 1, Q("0.86094 mm")),
])
sketch14.setExpression("Constraints[25]", "Params.sketch14_radius")
sketch14.setExpression("Constraints[27]", "Params.sketch14_width")
sketch14.setExpression("Constraints[28]", "Params.sketch14_height")
pocket6 = body.newObject("PartDesign::Pocket", "Pocket005")
pocket6.Profile = sketch14
pocket6.setExpression("Length", "Params.pocket6_length")
pocket6.Reversed = True

sketch15 = body.newObject("Sketcher::SketchObject", "Sketch014")
sketch15.AttachmentSupport = (doc.getObject("XZ_Plane"), [""])
sketch15.MapMode = "FlatFace"
sketch15.AttachmentOffset = App.Placement(Vector(0, 0, -10), App.Rotation())
sketch15.addGeometry([
    Part.LineSegment(Vector(10.16, 6.2, 0), Vector(10.51, 6.4, 0)),
    Part.ArcOfCircle(Part.Circle(Vector(10.56, 6.32, 0), Vector(0, 0, 1), 0.1), math.radians(0), math.radians(120)),
    Part.LineSegment(Vector(10.66, 6.32, 0), Vector(10.66, 5.45, 0)),
    Part.ArcOfCircle(Part.Circle(Vector(10.56, 5.45, 0), Vector(0, 0, 1), 0.1), math.radians(-120), math.radians(0)),
    Part.LineSegment(Vector(10.51, 5.37, 0), Vector(10.16, 5.57, 0)),
    Part.LineSegment(Vector(10.16, 5.57, 0), Vector(10.16, 6.2, 0)),
], False)
sketch15.addConstraint([
    Sketcher.Constraint("Tangent", 0, 2, 1, 2),
    Sketcher.Constraint("Tangent", 1, 1, 2, 1),
    Sketcher.Constraint("Tangent", 2, 2, 3, 2),
    Sketcher.Constraint("Tangent", 3, 1, 4, 1),
    Sketcher.Constraint("Coincident", 4, 2, 5, 1),
    Sketcher.Constraint("Coincident", 5, 2, 0, 1),
    Sketcher.Constraint("Vertical", 2),
    Sketcher.Constraint("Vertical", 5),
    Sketcher.Constraint("Equal", 1, 3),
    Sketcher.Constraint("Vertical", 0, 2, 3, 1),
    Sketcher.Constraint("Radius", 1, Q("0.1 mm")),
    Sketcher.Constraint("Angle", 0, Q("30 deg")),
    Sketcher.Constraint("DistanceY", 5, 1, 5, 2, Q("0.63 mm")),
    Sketcher.Constraint("DistanceY", -1, 1, 5, 2, Q("6.2 mm")),
    Sketcher.Constraint("DistanceX", 4, 2, 3, 3, Q("0.4 mm")),
    Sketcher.Constraint("DistanceX", -1, 1, 1, 3, Q("10.56 mm")),
])
sketch15.setExpression("Constraints[10]", "Params.sketch15_radius")
sketch15.setExpression("Constraints[12]", "Params.sketch15_height")
pad5 = body.newObject("PartDesign::Pad", "Pad004")
pad5.Profile = sketch15
pad5.setExpression("Length", "Params.pad5_length")

doc.recompute()
